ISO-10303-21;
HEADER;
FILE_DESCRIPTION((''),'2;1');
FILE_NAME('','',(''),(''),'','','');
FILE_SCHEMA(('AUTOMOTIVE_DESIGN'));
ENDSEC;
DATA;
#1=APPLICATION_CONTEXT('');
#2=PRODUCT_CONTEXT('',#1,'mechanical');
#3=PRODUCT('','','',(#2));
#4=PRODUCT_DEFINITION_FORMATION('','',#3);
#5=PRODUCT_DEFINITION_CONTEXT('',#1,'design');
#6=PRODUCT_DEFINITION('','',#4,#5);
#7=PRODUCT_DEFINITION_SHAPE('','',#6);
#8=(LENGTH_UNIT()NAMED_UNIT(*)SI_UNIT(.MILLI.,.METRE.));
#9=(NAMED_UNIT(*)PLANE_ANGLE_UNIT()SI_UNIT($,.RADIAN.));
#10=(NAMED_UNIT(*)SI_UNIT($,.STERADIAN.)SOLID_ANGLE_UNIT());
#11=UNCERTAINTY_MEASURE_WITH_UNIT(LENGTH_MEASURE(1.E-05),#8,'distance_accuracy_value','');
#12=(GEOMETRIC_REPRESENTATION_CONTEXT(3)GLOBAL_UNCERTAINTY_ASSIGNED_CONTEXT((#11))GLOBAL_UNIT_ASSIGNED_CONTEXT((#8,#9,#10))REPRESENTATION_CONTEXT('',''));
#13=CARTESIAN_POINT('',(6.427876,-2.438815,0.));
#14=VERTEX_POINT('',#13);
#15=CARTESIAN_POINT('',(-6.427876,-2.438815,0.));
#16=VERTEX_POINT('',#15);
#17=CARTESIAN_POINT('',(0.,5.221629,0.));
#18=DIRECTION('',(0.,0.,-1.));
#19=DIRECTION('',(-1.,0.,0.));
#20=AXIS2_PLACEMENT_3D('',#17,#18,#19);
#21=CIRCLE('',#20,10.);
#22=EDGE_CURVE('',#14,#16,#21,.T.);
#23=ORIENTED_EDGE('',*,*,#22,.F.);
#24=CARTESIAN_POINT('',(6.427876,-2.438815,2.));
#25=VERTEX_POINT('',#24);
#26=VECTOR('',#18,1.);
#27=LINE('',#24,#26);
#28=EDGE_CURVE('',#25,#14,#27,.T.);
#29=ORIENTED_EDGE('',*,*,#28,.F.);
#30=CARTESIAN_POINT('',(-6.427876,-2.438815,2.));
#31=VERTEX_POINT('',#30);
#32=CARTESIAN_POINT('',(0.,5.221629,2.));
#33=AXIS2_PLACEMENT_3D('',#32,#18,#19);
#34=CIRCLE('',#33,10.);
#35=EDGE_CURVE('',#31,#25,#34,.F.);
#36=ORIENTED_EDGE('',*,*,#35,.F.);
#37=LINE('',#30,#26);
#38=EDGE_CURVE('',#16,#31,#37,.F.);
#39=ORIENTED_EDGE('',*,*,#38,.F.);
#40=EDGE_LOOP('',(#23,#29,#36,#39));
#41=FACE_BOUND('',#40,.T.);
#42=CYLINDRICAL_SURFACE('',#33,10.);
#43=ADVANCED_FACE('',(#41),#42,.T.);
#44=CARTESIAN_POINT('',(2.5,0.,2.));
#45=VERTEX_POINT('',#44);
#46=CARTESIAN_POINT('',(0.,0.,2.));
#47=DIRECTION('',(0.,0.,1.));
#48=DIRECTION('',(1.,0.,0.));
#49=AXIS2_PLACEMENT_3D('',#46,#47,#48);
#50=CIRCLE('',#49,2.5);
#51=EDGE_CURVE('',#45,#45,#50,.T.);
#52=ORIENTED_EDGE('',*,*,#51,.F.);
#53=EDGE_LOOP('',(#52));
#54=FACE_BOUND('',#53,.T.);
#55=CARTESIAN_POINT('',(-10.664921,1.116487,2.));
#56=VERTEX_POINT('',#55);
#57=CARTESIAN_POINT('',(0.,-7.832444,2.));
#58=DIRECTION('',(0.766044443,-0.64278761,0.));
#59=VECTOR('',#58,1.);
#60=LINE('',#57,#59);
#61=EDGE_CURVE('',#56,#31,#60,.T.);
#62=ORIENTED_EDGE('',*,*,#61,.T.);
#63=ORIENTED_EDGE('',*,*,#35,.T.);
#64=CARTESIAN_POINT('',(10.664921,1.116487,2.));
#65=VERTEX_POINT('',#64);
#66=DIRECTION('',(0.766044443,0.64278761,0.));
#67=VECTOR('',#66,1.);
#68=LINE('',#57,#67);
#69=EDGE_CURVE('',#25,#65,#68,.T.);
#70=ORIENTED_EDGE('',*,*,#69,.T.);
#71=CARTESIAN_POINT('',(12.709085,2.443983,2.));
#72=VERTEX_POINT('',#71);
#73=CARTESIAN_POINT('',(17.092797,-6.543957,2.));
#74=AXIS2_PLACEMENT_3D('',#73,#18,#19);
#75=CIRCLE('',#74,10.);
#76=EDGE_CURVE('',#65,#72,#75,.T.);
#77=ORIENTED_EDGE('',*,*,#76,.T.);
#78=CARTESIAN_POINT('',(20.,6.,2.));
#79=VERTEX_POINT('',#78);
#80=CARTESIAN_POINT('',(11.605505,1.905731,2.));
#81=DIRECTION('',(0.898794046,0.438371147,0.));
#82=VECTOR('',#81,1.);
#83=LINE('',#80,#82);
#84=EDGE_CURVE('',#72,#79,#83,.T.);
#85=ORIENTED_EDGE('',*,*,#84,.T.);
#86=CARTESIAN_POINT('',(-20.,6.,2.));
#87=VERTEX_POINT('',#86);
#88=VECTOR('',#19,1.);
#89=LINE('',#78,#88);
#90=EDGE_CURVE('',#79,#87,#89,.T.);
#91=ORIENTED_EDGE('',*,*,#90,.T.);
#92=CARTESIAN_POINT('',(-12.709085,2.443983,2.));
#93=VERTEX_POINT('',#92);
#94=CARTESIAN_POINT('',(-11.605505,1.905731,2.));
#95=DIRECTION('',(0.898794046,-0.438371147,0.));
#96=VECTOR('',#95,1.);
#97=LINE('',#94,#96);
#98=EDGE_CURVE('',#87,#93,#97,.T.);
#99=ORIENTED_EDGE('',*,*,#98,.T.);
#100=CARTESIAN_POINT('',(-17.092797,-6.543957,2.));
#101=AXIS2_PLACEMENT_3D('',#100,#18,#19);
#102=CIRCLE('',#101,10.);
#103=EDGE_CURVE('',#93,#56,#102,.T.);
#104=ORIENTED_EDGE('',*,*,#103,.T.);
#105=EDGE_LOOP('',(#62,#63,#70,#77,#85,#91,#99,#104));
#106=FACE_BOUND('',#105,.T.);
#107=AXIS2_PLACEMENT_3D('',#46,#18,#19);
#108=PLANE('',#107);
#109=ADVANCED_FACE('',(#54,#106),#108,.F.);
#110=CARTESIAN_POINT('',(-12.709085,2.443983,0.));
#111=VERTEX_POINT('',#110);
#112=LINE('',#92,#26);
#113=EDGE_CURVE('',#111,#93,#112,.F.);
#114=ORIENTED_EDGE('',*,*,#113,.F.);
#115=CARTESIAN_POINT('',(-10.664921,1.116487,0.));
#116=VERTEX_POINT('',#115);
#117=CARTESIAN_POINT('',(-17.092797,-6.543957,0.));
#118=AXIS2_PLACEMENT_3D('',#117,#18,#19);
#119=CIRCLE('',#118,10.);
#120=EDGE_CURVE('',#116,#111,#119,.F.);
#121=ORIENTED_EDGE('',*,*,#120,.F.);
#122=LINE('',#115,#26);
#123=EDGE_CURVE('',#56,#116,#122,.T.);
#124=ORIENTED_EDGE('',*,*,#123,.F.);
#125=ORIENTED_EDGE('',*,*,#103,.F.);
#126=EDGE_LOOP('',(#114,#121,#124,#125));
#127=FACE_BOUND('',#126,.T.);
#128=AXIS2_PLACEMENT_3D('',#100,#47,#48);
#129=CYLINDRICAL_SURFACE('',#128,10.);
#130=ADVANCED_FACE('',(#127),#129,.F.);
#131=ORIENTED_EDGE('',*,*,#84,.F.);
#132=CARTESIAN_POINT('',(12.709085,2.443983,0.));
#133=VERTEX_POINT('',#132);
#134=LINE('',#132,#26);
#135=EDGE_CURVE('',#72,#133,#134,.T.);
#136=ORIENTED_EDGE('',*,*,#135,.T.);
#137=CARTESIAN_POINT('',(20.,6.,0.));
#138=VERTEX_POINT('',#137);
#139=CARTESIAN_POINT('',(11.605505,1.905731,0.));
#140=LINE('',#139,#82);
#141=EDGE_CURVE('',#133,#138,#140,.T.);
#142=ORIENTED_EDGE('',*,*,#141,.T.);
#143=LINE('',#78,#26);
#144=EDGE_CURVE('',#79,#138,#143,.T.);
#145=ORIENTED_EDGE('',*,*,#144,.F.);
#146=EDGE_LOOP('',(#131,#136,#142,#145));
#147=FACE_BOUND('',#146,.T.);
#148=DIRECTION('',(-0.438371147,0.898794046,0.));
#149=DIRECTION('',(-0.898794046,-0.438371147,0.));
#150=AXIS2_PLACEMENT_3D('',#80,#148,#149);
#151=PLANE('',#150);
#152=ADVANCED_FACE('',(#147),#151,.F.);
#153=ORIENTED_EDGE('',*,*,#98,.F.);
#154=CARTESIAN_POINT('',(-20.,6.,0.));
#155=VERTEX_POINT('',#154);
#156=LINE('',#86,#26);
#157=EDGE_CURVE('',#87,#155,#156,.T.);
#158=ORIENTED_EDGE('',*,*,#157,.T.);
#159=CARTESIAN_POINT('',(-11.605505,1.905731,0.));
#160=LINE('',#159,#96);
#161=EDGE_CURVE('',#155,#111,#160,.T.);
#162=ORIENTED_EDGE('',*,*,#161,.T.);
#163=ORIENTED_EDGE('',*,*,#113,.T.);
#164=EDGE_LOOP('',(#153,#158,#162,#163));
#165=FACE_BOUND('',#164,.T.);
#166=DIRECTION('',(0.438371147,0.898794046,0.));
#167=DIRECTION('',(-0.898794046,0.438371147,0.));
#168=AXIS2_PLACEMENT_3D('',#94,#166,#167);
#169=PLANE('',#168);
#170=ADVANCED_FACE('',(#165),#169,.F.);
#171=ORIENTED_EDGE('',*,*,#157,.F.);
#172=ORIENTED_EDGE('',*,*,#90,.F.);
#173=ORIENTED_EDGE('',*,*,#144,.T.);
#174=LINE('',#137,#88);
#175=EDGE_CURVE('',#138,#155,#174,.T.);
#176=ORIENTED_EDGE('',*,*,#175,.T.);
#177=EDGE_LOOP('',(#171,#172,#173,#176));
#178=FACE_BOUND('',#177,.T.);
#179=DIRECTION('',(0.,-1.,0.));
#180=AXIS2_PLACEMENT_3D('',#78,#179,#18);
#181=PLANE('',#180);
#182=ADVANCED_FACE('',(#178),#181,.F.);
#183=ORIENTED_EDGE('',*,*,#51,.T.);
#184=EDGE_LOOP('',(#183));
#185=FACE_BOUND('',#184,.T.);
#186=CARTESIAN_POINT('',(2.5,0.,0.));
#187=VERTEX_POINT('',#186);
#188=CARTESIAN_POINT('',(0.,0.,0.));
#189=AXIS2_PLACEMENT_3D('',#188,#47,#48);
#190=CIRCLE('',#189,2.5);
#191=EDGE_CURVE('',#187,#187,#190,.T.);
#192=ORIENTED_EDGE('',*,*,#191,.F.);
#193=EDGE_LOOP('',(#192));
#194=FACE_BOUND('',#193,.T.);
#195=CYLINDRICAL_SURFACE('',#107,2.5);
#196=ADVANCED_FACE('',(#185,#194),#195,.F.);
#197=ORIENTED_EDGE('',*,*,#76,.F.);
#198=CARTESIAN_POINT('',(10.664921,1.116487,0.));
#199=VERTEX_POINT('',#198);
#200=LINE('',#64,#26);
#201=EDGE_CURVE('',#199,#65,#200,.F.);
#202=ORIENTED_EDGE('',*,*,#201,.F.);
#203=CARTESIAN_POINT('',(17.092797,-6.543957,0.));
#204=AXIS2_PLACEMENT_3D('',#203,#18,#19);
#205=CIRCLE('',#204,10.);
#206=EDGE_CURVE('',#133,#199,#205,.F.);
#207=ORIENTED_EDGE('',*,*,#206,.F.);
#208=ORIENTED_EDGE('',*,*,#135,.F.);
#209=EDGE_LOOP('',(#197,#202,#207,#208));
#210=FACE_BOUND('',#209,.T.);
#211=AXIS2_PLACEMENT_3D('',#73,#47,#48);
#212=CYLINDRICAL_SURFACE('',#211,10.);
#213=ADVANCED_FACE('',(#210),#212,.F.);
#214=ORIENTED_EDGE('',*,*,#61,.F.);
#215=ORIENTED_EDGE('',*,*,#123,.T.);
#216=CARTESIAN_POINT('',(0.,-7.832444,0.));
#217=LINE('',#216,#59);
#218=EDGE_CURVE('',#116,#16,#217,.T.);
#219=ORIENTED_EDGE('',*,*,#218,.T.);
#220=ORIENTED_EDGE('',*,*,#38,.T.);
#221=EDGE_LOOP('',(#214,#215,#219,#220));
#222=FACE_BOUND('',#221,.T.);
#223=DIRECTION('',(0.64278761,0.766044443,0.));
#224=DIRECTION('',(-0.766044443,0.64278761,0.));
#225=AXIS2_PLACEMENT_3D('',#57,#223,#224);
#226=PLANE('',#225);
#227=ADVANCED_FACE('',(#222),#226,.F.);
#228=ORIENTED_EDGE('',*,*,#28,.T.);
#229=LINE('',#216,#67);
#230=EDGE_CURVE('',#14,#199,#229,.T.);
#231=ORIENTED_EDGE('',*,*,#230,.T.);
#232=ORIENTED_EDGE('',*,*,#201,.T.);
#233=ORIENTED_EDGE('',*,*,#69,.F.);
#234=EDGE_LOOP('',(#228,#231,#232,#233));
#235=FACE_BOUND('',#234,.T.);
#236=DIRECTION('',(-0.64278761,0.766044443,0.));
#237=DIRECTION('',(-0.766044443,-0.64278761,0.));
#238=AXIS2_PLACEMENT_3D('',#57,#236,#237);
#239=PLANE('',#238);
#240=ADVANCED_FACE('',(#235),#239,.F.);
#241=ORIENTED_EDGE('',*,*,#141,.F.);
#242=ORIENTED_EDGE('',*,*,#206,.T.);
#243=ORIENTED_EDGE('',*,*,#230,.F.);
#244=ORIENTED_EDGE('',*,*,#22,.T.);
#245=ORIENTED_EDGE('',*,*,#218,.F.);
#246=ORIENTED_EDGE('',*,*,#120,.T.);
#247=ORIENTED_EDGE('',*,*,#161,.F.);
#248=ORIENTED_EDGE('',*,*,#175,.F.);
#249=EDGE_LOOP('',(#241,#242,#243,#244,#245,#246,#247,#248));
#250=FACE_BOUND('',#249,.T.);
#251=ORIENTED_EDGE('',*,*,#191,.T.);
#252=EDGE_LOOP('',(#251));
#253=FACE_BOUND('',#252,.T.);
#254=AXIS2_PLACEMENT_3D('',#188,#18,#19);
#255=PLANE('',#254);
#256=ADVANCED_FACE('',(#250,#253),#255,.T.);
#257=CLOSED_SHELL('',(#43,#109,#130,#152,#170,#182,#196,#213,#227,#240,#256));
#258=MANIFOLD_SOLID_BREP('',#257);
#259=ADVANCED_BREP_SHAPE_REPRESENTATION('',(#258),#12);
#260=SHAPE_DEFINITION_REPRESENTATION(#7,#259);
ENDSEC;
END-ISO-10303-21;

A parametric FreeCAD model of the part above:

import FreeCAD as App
import Part
import Sketcher
Q = App.Units.Quantity


def edges_at(feature, points):
    """Names of the edges that pass closest to the given points."""
    edges = feature.Shape.Edges
    near = lambda p: min(range(len(edges)), key=lambda i: edges[i].distToShape(Part.Vertex(*p))[0])
    return sorted({f"Edge{near(p) + 1}" for p in points})


def add_polygon(sketch, points):
    """Adds a closed chain of lines whose ends are joined by coincident constraints."""
    first, n = sketch.GeometryCount, len(points)
    for a, b in zip(points, points[1:] + points[:1]):
        sketch.addGeometry(Part.LineSegment(App.Vector(*a, 0), App.Vector(*b, 0)), False)
    for i in range(n):
        sketch.addConstraint(Sketcher.Constraint("Coincident", first + i, 2, first + (i + 1) % n, 1))

doc = App.newDocument("Part")
body = doc.addObject("PartDesign::Body", "Body")

sketch1 = body.newObject("Sketcher::SketchObject", "Sketch")
sketch1.AttachmentSupport = (doc.getObject("XY_Plane"), [""])
sketch1.MapMode = "FlatFace"
add_polygon(sketch1, [(0, -7.8), (11.6, 1.9), (20, 6), (-20, 6), (-11.6, 1.9)])
sketch1.addGeometry(Part.Circle(App.Vector(0, 0, 0), App.Vector(0, 0, 1), 2.5), False)
sketch1.addConstraint(Sketcher.Constraint("Horizontal", 2))
sketch1.addConstraint(Sketcher.Constraint("Coincident", 5, 3, -1, 1))
sketch1.addConstraint(Sketcher.Constraint("Symmetric", 0, 2, 3, 2, -2))
sketch1.addConstraint(Sketcher.Constraint("PointOnObject", 4, 2, -2))
sketch1.addConstraint(Sketcher.Constraint("Equal", 1, 3))
sketch1.addConstraint(Sketcher.Constraint("Diameter", 5, 5.0))
sketch1.addConstraint(Sketcher.Constraint("DistanceX", 2, 2, 2, 1, 40.0))
sketch1.addConstraint(Sketcher.Constraint("Angle", 0, Q("40 deg")))
sketch1.addConstraint(Sketcher.Constraint("Angle", 1, Q("26 deg")))
sketch1.addConstraint(Sketcher.Constraint("DistanceY", -1, 1, 1, 2, 6.0))
sketch1.addConstraint(Sketcher.Constraint("Distance", 0, 15.149911))
pad1 = body.newObject("PartDesign::Pad", "Pad")
pad1.Profile = sketch1
pad1.Length = 2
doc.recompute()

fillet = body.newObject("PartDesign::Fillet", "Fillet")
fillet.Base = (pad1, edges_at(pad1, [(-11.606, 1.906, 1), (11.606, 1.906, 1), (0, -7.832, 1)]))
fillet.Radius = 10

doc.recompute()
